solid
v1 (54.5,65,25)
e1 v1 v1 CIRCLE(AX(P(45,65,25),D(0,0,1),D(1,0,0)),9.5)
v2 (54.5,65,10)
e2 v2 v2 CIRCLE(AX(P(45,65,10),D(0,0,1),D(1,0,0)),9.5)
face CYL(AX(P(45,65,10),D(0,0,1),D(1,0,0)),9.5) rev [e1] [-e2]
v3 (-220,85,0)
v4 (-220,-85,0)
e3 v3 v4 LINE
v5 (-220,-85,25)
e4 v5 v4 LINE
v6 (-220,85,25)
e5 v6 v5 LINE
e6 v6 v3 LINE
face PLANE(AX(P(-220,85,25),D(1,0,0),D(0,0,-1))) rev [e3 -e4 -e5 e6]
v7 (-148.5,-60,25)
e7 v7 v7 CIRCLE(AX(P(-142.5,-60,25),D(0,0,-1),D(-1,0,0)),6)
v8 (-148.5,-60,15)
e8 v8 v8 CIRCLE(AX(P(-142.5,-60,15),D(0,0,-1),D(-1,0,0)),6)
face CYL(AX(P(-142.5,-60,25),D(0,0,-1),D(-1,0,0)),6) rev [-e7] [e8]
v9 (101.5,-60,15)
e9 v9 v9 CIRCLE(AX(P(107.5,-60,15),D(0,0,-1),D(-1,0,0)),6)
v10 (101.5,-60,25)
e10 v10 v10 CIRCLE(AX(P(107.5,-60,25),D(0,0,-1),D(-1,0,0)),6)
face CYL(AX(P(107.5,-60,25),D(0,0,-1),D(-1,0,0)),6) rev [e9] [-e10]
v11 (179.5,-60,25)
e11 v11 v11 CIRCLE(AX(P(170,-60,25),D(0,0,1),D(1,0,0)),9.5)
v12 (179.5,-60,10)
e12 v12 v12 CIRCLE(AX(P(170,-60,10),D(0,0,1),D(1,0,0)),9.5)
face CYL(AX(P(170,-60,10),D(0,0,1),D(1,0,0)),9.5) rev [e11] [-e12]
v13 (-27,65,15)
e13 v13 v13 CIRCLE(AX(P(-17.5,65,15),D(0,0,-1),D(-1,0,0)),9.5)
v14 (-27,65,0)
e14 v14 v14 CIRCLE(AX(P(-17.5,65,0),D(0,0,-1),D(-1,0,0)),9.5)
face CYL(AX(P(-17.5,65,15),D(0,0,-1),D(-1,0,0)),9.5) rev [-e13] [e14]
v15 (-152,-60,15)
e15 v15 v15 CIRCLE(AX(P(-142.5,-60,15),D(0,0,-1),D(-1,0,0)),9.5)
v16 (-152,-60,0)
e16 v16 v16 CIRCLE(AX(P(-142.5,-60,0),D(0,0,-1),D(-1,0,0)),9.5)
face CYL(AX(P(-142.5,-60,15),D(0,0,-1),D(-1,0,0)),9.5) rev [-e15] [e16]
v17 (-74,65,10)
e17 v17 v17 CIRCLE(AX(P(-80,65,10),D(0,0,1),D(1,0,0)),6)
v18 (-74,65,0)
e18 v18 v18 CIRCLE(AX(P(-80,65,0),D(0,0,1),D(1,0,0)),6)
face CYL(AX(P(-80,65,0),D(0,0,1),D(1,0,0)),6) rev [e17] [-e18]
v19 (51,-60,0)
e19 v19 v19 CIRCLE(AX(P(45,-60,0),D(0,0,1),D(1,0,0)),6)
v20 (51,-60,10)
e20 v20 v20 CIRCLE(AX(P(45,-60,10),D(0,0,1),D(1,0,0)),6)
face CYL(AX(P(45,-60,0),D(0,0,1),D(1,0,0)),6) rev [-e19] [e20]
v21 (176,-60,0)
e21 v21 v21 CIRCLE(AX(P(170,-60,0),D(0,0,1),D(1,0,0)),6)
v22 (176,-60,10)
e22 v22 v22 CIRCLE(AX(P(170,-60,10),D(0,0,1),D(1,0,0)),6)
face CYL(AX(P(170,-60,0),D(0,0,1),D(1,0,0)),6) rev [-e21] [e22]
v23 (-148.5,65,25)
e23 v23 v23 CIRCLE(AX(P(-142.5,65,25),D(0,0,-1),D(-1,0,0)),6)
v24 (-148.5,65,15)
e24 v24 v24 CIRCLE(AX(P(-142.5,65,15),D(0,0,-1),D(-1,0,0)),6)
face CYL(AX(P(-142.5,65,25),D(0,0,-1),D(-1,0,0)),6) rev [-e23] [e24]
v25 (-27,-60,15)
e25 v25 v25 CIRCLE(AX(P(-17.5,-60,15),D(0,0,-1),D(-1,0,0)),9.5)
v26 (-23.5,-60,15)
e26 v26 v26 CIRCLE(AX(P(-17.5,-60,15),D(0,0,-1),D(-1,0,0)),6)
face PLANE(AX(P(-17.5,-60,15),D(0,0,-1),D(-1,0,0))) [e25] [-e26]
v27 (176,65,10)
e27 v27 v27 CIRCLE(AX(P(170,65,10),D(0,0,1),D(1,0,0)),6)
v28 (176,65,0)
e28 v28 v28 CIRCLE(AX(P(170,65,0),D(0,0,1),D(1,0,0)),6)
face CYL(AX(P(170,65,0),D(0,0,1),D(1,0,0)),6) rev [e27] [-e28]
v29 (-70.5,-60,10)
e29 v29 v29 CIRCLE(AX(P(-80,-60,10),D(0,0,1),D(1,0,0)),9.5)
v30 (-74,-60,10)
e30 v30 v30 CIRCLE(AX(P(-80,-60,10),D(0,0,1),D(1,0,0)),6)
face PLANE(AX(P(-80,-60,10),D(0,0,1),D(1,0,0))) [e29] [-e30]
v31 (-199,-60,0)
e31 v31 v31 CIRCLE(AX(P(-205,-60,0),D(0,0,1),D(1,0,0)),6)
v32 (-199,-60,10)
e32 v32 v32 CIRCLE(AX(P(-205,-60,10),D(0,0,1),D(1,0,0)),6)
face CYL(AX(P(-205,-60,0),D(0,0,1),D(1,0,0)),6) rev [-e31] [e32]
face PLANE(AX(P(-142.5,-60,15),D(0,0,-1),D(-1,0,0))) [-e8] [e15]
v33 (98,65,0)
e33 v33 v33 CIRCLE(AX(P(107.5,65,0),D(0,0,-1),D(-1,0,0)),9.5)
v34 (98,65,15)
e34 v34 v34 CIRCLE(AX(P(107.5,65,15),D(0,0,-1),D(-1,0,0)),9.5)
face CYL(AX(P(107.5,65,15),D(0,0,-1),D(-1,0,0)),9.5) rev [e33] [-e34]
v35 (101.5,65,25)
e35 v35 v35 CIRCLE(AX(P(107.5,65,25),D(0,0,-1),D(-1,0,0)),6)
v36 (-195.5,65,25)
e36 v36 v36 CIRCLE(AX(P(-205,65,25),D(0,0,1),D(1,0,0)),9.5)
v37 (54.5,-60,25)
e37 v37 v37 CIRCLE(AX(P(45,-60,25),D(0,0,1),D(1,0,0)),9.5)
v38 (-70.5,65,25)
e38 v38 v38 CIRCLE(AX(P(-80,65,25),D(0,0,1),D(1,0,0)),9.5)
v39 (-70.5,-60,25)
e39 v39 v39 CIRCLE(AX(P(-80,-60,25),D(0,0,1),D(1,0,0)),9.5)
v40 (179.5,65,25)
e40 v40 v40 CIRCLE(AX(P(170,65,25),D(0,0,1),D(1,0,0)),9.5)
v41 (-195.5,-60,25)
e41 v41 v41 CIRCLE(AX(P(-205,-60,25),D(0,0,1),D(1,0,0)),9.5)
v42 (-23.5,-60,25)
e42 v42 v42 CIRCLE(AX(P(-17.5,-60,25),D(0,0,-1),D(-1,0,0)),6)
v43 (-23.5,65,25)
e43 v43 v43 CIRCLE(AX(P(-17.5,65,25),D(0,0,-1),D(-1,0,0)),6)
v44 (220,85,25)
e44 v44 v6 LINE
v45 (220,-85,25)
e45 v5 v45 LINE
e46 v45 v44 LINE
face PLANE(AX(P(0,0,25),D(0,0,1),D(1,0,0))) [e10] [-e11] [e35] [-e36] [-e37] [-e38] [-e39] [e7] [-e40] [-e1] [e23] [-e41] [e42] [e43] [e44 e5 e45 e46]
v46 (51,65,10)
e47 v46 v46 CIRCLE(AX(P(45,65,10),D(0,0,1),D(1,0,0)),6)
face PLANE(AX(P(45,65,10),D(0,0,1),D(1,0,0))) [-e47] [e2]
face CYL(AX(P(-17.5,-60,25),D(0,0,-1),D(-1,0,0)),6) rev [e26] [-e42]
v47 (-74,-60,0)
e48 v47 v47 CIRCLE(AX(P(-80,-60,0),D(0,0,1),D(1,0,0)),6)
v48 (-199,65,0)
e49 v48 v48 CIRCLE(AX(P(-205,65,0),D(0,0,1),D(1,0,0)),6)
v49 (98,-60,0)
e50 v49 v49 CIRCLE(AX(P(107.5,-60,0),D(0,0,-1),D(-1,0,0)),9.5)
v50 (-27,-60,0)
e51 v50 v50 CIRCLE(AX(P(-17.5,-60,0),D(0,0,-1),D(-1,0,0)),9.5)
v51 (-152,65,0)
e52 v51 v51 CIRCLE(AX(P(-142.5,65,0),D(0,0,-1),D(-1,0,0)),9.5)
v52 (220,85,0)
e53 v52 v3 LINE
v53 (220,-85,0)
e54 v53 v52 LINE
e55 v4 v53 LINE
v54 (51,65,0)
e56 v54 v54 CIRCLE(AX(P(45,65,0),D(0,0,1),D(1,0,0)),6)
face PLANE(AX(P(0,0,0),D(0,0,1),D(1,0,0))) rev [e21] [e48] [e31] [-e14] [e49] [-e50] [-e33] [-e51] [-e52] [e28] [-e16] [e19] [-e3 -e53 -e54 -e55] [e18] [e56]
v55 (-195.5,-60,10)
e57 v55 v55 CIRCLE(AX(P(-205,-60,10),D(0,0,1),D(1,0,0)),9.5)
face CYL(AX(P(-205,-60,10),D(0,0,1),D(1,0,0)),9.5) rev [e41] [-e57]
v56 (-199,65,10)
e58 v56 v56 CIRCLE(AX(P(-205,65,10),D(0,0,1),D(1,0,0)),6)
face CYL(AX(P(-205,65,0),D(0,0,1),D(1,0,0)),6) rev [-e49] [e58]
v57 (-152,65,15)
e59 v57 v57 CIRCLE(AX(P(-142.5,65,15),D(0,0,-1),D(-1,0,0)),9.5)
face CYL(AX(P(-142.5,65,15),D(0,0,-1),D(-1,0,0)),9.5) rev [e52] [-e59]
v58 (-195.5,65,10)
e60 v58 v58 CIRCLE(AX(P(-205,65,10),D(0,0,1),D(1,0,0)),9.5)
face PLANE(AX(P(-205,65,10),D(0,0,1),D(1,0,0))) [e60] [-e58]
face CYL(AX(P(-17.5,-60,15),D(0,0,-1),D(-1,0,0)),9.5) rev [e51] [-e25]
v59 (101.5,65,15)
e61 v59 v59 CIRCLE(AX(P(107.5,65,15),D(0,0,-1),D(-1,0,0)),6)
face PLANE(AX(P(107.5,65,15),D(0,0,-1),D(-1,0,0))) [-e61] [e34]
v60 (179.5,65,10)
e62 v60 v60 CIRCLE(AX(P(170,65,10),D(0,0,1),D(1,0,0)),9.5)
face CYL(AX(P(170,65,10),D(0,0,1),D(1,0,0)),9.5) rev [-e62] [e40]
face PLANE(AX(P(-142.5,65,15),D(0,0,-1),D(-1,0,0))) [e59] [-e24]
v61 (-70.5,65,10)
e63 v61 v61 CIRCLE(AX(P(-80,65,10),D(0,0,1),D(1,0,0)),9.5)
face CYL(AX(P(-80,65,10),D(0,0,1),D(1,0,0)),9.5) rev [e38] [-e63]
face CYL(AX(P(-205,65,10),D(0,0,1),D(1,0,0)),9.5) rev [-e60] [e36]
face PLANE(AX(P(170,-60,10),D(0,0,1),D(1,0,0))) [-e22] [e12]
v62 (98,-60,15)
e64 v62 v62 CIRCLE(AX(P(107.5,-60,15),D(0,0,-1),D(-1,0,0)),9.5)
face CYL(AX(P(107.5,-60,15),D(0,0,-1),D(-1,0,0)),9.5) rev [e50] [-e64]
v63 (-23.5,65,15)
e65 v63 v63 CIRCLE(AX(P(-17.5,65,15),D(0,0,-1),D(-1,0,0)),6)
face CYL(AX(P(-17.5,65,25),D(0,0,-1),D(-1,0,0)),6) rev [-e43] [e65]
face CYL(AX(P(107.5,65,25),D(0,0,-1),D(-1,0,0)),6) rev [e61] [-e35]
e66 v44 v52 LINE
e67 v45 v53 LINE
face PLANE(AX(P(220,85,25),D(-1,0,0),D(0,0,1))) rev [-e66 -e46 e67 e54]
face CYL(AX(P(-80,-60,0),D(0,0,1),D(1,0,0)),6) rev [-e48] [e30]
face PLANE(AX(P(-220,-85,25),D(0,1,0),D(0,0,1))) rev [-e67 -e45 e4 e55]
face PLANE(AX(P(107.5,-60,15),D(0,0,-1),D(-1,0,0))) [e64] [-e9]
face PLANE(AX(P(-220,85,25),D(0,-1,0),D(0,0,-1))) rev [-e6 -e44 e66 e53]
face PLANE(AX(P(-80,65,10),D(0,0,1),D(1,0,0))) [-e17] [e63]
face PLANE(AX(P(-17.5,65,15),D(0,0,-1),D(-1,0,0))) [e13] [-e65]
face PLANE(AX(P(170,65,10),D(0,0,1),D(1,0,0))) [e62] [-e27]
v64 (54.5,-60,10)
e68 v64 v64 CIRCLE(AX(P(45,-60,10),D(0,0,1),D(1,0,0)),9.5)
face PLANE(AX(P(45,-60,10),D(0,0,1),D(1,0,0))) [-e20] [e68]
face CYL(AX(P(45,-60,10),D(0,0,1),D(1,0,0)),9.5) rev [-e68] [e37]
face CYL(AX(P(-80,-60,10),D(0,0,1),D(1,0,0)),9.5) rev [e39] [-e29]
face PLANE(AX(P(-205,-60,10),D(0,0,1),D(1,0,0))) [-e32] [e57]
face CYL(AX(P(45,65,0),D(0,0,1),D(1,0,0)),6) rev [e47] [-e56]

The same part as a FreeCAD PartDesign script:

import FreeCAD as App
import Part
import Sketcher
from FreeCAD import Vector


def add_polygon(sketch, points):
    """Adds a closed chain of lines whose ends are joined by coincident constraints."""
    first, n = sketch.GeometryCount, len(points)
    for a, b in zip(points, points[1:] + points[:1]):
        sketch.addGeometry(Part.LineSegment(App.Vector(*a, 0), App.Vector(*b, 0)), False)
    for i in range(n):
        sketch.addConstraint(Sketcher.Constraint("Coincident", first + i, 2, first + (i + 1) % n, 1))

doc = App.newDocument("Part")
body = doc.addObject("PartDesign::Body", "Body")

sketch1 = doc.addObject("Sketcher::SketchObject", "Sketch")
body.addObject(sketch1)
sketch1.AttachmentSupport = (doc.XY_Plane, [""])
sketch1.MapMode = "FlatFace"
add_polygon(sketch1, [(-220, 85), (-220, -85), (220, -85), (220, 85)])
sketch1.addConstraint([
    Sketcher.Constraint("Vertical", 0),
    Sketcher.Constraint("Horizontal", 1),
    Sketcher.Constraint("Vertical", 2),
    Sketcher.Constraint("Horizontal", 3),
    Sketcher.Constraint("Symmetric", 0, 2, 2, 2, -1, 1),
    Sketcher.Constraint("DistanceX", 1, 1, 1, 2, 440.0),
    Sketcher.Constraint("DistanceY", 0, 2, 0, 1, 170.0),
])
pad1 = doc.addObject("PartDesign::Pad", "Pad")
body.addObject(pad1)
pad1.Profile = sketch1
pad1.Length = 25

sketch2 = doc.addObject("Sketcher::SketchObject", "Sketch001")
body.addObject(sketch2)
sketch2.AttachmentSupport = (doc.XY_Plane, [""])
sketch2.MapMode = "FlatFace"
sketch2.AttachmentOffset = App.Placement(Vector(0, 0, 25), App.Rotation())
sketch2.addGeometry([
    Part.Circle(Vector(170, 65, 0), Vector(0, 0, 1), 9.5),
    Part.Circle(Vector(45, 65, 0), Vector(0, 0, 1), 9.5),
    Part.Circle(Vector(-80, 65, 0), Vector(0, 0, 1), 9.5),
    Part.Circle(Vector(-205, 65, 0), Vector(0, 0, 1), 9.5),
    Part.Circle(Vector(45, -60, 0), Vector(0, 0, 1), 9.5),
    Part.Circle(Vector(-80, -60, 0), Vector(0, 0, 1), 9.5),
    Part.Circle(Vector(-205, -60, 0), Vector(0, 0, 1), 9.5),
    Part.Circle(Vector(170, -60, 0), Vector(0, 0, 1), 9.5),
], False)
sketch2.addConstraint([
    Sketcher.Constraint("Equal", 0, 1),
    Sketcher.Constraint("Equal", 1, 2),
    Sketcher.Constraint("Equal", 2, 3),
    Sketcher.Constraint("Equal", 3, 4),
    Sketcher.Constraint("Equal", 4, 5),
    Sketcher.Constraint("Equal", 5, 6),
    Sketcher.Constraint("Equal", 6, 7),
    Sketcher.Constraint("Horizontal", 0, 3, 1, 3),
    Sketcher.Constraint("Horizontal", 1, 3, 2, 3),
    Sketcher.Constraint("Horizontal", 2, 3, 3, 3),
    Sketcher.Constraint("Horizontal", 4, 3, 5, 3),
    Sketcher.Constraint("Horizontal", 5, 3, 6, 3),
    Sketcher.Constraint("Horizontal", 6, 3, 7, 3),
    Sketcher.Constraint("Vertical", 1, 3, 4, 3),
    Sketcher.Constraint("Vertical", 2, 3, 5, 3),
    Sketcher.Constraint("Vertical", 3, 3, 6, 3),
    Sketcher.Constraint("Vertical", 0, 3, 7, 3),
    Sketcher.Constraint("Diameter", 0, 19.0),
    Sketcher.Constraint("DistanceX", -1, 1, 0, 3, 170.0),
    Sketcher.Constraint("DistanceY", -1, 1, 0, 3, 65.0),
    Sketcher.Constraint("DistanceX", -1, 1, 1, 3, 45.0),
    Sketcher.Constraint("DistanceX", 2, 3, -1, 1, 80.0),
    Sketcher.Constraint("DistanceX", 3, 3, -1, 1, 205.0),
    Sketcher.Constraint("DistanceY", 4, 3, -1, 1, 60.0),
])
pocket1 = doc.addObject("PartDesign::Pocket", "Pocket")
body.addObject(pocket1)
pocket1.Profile = sketch2
pocket1.Length = 15

sketch3 = doc.addObject("Sketcher::SketchObject", "Sketch002")
body.addObject(sketch3)
sketch3.AttachmentSupport = (doc.XY_Plane, [""])
sketch3.MapMode = "FlatFace"
sketch3.AttachmentOffset = App.Placement(Vector(0, 0, 10), App.Rotation())
sketch3.addGeometry([
    Part.Circle(Vector(170, 65, 0), Vector(0, 0, 1), 6),
    Part.Circle(Vector(45, 65, 0), Vector(0, 0, 1), 6),
    Part.Circle(Vector(-80, 65, 0), Vector(0, 0, 1), 6),
    Part.Circle(Vector(-205, 65, 0), Vector(0, 0, 1), 6),
    Part.Circle(Vector(45, -60, 0), Vector(0, 0, 1), 6),
    Part.Circle(Vector(-80, -60, 0), Vector(0, 0, 1), 6),
    Part.Circle(Vector(-205, -60, 0), Vector(0, 0, 1), 6),
    Part.Circle(Vector(170, -60, 0), Vector(0, 0, 1), 6),
], False)
sketch3.addConstraint([
    Sketcher.Constraint("Equal", 0, 1),
    Sketcher.Constraint("Equal", 1, 2),
    Sketcher.Constraint("Equal", 2, 3),
    Sketcher.Constraint("Equal", 3, 4),
    Sketcher.Constraint("Equal", 4, 5),
    Sketcher.Constraint("Equal", 5, 6),
    Sketcher.Constraint("Equal", 6, 7),
    Sketcher.Constraint("Horizontal", 0, 3, 1, 3),
    Sketcher.Constraint("Horizontal", 1, 3, 2, 3),
    Sketcher.Constraint("Horizontal", 2, 3, 3, 3),
    Sketcher.Constraint("Horizontal", 4, 3, 5, 3),
    Sketcher.Constraint("Horizontal", 5, 3, 6, 3),
    Sketcher.Constraint("Horizontal", 6, 3, 7, 3),
    Sketcher.Constraint("Vertical", 1, 3, 4, 3),
    Sketcher.Constraint("Vertical", 2, 3, 5, 3),
    Sketcher.Constraint("Vertical", 3, 3, 6, 3),
    Sketcher.Constraint("Vertical", 0, 3, 7, 3),
    Sketcher.Constraint("Diameter", 0, 12.0),
    Sketcher.Constraint("DistanceX", -1, 1, 0, 3, 170.0),
    Sketcher.Constraint("DistanceY", -1, 1, 0, 3, 65.0),
    Sketcher.Constraint("DistanceX", -1, 1, 1, 3, 45.0),
    Sketcher.Constraint("DistanceX", 2, 3, -1, 1, 80.0),
    Sketcher.Constraint("DistanceX", 3, 3, -1, 1, 205.0),
    Sketcher.Constraint("DistanceY", 4, 3, -1, 1, 60.0),
])
pocket2 = doc.addObject("PartDesign::Pocket", "Pocket001")
body.addObject(pocket2)
pocket2.Profile = sketch3
pocket2.Type = "ThroughAll"

sketch4 = doc.addObject("Sketcher::SketchObject", "Sketch003")
body.addObject(sketch4)
sketch4.AttachmentSupport = (doc.XY_Plane, [""])
sketch4.MapMode = "FlatFace"
sketch4.addGeometry([
    Part.Circle(Vector(107.5, -60, 0), Vector(0, 0, 1), 9.5),
    Part.Circle(Vector(-17.5, -60, 0), Vector(0, 0, 1), 9.5),
    Part.Circle(Vector(-142.5, -60, 0), Vector(0, 0, 1), 9.5),
    Part.Circle(Vector(-17.5, 65, 0), Vector(0, 0, 1), 9.5),
    Part.Circle(Vector(-142.5, 65, 0), Vector(0, 0, 1), 9.5),
    Part.Circle(Vector(107.5, 65, 0), Vector(0, 0, 1), 9.5),
], False)
sketch4.addConstraint([
    Sketcher.Constraint("Equal", 0, 1),
    Sketcher.Constraint("Equal", 1, 2),
    Sketcher.Constraint("Equal", 2, 3),
    Sketcher.Constraint("Equal", 3, 4),
    Sketcher.Constraint("Equal", 4, 5),
    Sketcher.Constraint("Horizontal", 0, 3, 1, 3),
    Sketcher.Constraint("Horizontal", 1, 3, 2, 3),
    Sketcher.Constraint("Horizontal", 3, 3, 4, 3),
    Sketcher.Constraint("Horizontal", 4, 3, 5, 3),
    Sketcher.Constraint("Vertical", 1, 3, 3, 3),
    Sketcher.Constraint("Vertical", 2, 3, 4, 3),
    Sketcher.Constraint("Vertical", 0, 3, 5, 3),
    Sketcher.Constraint("Diameter", 0, 19.0),
    Sketcher.Constraint("DistanceY", 0, 3, -1, 1, 60.0),
    Sketcher.Constraint("DistanceY", -1, 1, 3, 3, 65.0),
    Sketcher.Constraint("DistanceX", 1, 3, 0, 3, 125.0),
    Sketcher.Constraint("DistanceX", 2, 3, 1, 3, 125.0),
    Sketcher.Constraint("DistanceX", -1, 1, 0, 3, 107.5),
])
pocket3 = doc.addObject("PartDesign::Pocket", "Pocket002")
body.addObject(pocket3)
pocket3.Profile = sketch4
pocket3.Length = 15
pocket3.Reversed = True

sketch5 = doc.addObject("Sketcher::SketchObject", "Sketch004")
body.addObject(sketch5)
sketch5.AttachmentSupport = (doc.XY_Plane, [""])
sketch5.MapMode = "FlatFace"
sketch5.AttachmentOffset = App.Placement(Vector(0, 0, 15), App.Rotation())
sketch5.addGeometry([
    Part.Circle(Vector(107.5, -60, 0), Vector(0, 0, 1), 6),
    Part.Circle(Vector(-17.5, -60, 0), Vector(0, 0, 1), 6),
    Part.Circle(Vector(-142.5, -60, 0), Vector(0, 0, 1), 6),
    Part.Circle(Vector(-17.5, 65, 0), Vector(0, 0, 1), 6),
    Part.Circle(Vector(-142.5, 65, 0), Vector(0, 0, 1), 6),
    Part.Circle(Vector(107.5, 65, 0), Vector(0, 0, 1), 6),
], False)
sketch5.addConstraint([
    Sketcher.Constraint("Equal", 0, 1),
    Sketcher.Constraint("Equal", 1, 2),
    Sketcher.Constraint("Equal", 2, 3),
    Sketcher.Constraint("Equal", 3, 4),
    Sketcher.Constraint("Equal", 4, 5),
    Sketcher.Constraint("Horizontal", 0, 3, 1, 3),
    Sketcher.Constraint("Horizontal", 1, 3, 2, 3),
    Sketcher.Constraint("Horizontal", 3, 3, 4, 3),
    Sketcher.Constraint("Horizontal", 4, 3, 5, 3),
    Sketcher.Constraint("Vertical", 1, 3, 3, 3),
    Sketcher.Constraint("Vertical", 2, 3, 4, 3),
    Sketcher.Constraint("Vertical", 0, 3, 5, 3),
    Sketcher.Constraint("Diameter", 0, 12.0),
    Sketcher.Constraint("DistanceY", 0, 3, -1, 1, 60.0),
    Sketcher.Constraint("DistanceY", -1, 1, 3, 3, 65.0),
    Sketcher.Constraint("DistanceX", 1, 3, 0, 3, 125.0),
    Sketcher.Constraint("DistanceX", 2, 3, 1, 3, 125.0),
    Sketcher.Constraint("DistanceX", -1, 1, 0, 3, 107.5),
])
pocket4 = doc.addObject("PartDesign::Pocket", "Pocket003")
body.addObject(pocket4)
pocket4.Profile = sketch5
pocket4.Type = "ThroughAll"
pocket4.Reversed = True

doc.recompute()
